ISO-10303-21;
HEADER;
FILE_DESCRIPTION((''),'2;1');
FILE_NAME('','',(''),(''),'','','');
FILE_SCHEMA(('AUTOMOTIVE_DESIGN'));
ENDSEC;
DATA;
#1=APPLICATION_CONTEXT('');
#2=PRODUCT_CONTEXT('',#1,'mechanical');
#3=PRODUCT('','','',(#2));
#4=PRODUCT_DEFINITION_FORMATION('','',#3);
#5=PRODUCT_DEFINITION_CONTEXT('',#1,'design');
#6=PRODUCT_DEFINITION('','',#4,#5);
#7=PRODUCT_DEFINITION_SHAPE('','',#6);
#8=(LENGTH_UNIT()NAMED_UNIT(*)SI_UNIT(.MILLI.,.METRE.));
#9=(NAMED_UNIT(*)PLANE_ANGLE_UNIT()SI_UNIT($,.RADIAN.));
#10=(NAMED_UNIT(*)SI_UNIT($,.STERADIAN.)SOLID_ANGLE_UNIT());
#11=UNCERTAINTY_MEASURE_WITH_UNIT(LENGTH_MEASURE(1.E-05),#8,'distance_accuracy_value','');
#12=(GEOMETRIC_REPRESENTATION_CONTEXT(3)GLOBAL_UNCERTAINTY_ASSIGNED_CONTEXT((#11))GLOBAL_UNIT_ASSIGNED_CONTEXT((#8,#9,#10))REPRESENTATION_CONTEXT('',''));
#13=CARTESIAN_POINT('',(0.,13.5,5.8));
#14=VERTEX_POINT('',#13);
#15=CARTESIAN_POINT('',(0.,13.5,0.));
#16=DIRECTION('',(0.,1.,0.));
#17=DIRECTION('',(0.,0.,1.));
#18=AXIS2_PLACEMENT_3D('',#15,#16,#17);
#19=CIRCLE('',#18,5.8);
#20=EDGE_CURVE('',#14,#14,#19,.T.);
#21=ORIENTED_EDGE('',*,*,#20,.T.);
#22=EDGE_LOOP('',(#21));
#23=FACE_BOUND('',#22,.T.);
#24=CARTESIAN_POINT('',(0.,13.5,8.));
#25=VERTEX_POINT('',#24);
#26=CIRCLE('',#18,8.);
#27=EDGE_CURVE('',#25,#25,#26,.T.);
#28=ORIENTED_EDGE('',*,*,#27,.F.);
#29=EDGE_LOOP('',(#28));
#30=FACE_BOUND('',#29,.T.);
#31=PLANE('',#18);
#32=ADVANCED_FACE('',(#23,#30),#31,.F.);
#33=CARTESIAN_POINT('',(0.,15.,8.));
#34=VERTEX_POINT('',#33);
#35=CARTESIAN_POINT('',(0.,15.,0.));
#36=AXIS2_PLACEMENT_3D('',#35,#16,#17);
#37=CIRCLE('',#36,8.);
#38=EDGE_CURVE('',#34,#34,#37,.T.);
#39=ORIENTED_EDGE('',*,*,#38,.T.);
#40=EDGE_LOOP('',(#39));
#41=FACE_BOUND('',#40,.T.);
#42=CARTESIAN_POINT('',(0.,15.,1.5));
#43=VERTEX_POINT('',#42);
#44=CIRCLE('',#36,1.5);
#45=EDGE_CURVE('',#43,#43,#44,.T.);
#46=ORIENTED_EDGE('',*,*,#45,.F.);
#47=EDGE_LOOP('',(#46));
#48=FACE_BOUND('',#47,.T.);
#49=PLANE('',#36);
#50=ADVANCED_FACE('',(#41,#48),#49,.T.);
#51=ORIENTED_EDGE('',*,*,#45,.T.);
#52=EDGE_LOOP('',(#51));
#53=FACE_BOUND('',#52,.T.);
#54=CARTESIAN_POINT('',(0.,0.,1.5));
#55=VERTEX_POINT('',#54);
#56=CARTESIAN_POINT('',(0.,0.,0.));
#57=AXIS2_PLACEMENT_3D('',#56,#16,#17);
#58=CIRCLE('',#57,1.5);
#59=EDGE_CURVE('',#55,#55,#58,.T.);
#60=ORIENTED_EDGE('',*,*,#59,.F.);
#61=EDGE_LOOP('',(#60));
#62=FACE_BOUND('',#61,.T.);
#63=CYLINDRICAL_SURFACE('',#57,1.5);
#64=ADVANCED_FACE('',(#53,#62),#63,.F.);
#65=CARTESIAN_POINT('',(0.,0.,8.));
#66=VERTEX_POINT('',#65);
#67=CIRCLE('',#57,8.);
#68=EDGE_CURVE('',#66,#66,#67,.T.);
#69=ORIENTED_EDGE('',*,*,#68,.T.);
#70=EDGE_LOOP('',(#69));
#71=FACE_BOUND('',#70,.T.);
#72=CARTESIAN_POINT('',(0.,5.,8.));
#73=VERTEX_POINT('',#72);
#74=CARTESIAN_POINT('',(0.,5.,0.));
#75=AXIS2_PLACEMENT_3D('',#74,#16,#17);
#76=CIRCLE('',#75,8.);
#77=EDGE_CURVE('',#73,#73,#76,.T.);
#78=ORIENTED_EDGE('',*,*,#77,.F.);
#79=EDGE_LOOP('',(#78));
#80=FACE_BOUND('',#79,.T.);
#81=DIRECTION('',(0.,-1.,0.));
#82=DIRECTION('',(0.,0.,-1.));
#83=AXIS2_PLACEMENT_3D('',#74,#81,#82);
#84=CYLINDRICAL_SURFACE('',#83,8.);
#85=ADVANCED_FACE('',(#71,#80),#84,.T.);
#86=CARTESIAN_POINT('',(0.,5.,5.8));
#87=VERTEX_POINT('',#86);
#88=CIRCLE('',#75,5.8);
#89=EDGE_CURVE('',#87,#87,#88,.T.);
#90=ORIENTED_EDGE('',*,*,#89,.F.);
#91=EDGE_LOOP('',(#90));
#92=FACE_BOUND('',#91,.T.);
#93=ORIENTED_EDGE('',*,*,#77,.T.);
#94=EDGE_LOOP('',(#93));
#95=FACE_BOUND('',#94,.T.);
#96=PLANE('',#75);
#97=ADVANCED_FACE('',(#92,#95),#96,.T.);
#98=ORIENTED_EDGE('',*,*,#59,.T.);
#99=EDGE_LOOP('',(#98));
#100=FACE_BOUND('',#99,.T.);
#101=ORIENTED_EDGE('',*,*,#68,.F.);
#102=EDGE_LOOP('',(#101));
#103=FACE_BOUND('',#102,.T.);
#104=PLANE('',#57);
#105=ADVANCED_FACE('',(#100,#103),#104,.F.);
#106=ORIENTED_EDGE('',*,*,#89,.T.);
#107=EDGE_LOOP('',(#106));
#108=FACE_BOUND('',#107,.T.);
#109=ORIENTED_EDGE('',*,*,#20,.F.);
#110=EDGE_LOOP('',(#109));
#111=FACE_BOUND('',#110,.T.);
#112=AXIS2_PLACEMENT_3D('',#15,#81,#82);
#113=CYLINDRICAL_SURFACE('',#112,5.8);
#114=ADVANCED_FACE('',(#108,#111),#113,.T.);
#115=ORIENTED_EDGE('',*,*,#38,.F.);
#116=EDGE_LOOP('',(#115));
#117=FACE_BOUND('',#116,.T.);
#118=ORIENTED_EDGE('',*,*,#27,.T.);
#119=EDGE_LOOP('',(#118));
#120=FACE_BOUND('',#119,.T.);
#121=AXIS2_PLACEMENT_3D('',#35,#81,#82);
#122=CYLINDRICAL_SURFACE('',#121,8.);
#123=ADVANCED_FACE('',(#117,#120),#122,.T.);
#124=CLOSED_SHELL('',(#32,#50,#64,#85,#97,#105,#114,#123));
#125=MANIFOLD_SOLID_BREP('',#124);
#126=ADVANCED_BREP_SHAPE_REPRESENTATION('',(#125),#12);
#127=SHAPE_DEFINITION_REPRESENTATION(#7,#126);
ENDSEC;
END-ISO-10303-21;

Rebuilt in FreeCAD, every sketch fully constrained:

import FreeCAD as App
import Part
import Sketcher
Q = App.Units.Quantity

doc = App.newDocument("Part")
params = doc.addObject("Spreadsheet::Sheet", "Params")
for row, (alias, value) in enumerate([
    ("sketch1_diameter", "16 mm"),
    ("pad1_length", "5 mm"),
    ("sketch2_diameter", "11.6 mm"),
    ("pad2_length", "8.5 mm"),
    ("sketch3_diameter", "16 mm"),
    ("pad3_length", "1.5 mm"),
    ("sketch4_diameter", "3 mm"),
    ("pocket1_length", "15 mm"),
], start=1):
    params.set(f"A{row}", alias)
    params.set(f"B{row}", "=" + value)
    params.setAlias(f"B{row}", alias)

body = doc.addObject("PartDesign::Body", "Body")

# Sketch on XZ plane
sketch1 = body.newObject("Sketcher::SketchObject", "Sketch")
sketch1.AttachmentSupport = (doc.getObject("XZ_Plane"), [""])
sketch1.MapMode = "FlatFace"
sketch1.addGeometry(Part.Circle(App.Vector(0, 0, 0), App.Vector(0, 0, 1), 8), False)
sketch1.addConstraint([
    Sketcher.Constraint("Coincident", 0, 3, -1, 1),
    Sketcher.Constraint("Diameter", 0, Q("16 mm")),
])
sketch1.setExpression("Constraints[1]", "Params.sketch1_diameter")
pad1 = body.newObject("PartDesign::Pad", "Pad")
pad1.Profile = sketch1
pad1.setExpression("Length", "Params.pad1_length")
pad1.Reversed = True

# Sketch on XZ plane
sketch2 = body.newObject("Sketcher::SketchObject", "Sketch001")
sketch2.AttachmentSupport = (doc.getObject("XZ_Plane"), [""])
sketch2.MapMode = "FlatFace"
sketch2.AttachmentOffset = App.Placement(App.Vector(0, 0, -5), App.Rotation())
sketch2.addGeometry(Part.Circle(App.Vector(0, 0, 0), App.Vector(0, 0, 1), 6), False)
sketch2.addConstraint([
    Sketcher.Constraint("Coincident", 0, 3, -1, 1),
    Sketcher.Constraint("Diameter", 0, Q("11.6 mm")),
])
sketch2.setExpression("Constraints[1]", "Params.sketch2_diameter")
pad2 = body.newObject("PartDesign::Pad", "Pad001")
pad2.Profile = sketch2
pad2.setExpression("Length", "Params.pad2_length")
pad2.Reversed = True

# Sketch on XZ plane
sketch3 = body.newObject("Sketcher::SketchObject", "Sketch002")
sketch3.AttachmentSupport = (doc.getObject("XZ_Plane"), [""])
sketch3.MapMode = "FlatFace"
sketch3.AttachmentOffset = App.Placement(App.Vector(0, 0, -13.5), App.Rotation())
sketch3.addGeometry(Part.Circle(App.Vector(0, 0, 0), App.Vector(0, 0, 1), 8), False)
sketch3.addConstraint([
    Sketcher.Constraint("Coincident", 0, 3, -1, 1),
    Sketcher.Constraint("Diameter", 0, Q("16 mm")),
])
sketch3.setExpression("Constraints[1]", "Params.sketch3_diameter")
pad3 = body.newObject("PartDesign::Pad", "Pad002")
pad3.Profile = sketch3
pad3.setExpression("Length", "Params.pad3_length")
pad3.Reversed = True

# Sketch on XZ plane
sketch4 = body.newObject("Sketcher::SketchObject", "Sketch003")
sketch4.AttachmentSupport = (doc.getObject("XZ_Plane"), [""])
sketch4.MapMode = "FlatFace"
sketch4.AttachmentOffset = App.Placement(App.Vector(0, 0, -15), App.Rotation())
sketch4.addGeometry(Part.Circle(App.Vector(0, 0, 0), App.Vector(0, 0, 1), 1.5), False)
sketch4.addConstraint([
    Sketcher.Constraint("Coincident", 0, 3, -1, 1),
    Sketcher.Constraint("Diameter", 0, Q("3 mm")),
])
sketch4.setExpression("Constraints[1]", "Params.sketch4_diameter")
pocket1 = body.newObject("PartDesign::Pocket", "Pocket")
pocket1.Profile = sketch4
pocket1.setExpression("Length", "Params.pocket1_length")
pocket1.Reversed = True

doc.recompute()
